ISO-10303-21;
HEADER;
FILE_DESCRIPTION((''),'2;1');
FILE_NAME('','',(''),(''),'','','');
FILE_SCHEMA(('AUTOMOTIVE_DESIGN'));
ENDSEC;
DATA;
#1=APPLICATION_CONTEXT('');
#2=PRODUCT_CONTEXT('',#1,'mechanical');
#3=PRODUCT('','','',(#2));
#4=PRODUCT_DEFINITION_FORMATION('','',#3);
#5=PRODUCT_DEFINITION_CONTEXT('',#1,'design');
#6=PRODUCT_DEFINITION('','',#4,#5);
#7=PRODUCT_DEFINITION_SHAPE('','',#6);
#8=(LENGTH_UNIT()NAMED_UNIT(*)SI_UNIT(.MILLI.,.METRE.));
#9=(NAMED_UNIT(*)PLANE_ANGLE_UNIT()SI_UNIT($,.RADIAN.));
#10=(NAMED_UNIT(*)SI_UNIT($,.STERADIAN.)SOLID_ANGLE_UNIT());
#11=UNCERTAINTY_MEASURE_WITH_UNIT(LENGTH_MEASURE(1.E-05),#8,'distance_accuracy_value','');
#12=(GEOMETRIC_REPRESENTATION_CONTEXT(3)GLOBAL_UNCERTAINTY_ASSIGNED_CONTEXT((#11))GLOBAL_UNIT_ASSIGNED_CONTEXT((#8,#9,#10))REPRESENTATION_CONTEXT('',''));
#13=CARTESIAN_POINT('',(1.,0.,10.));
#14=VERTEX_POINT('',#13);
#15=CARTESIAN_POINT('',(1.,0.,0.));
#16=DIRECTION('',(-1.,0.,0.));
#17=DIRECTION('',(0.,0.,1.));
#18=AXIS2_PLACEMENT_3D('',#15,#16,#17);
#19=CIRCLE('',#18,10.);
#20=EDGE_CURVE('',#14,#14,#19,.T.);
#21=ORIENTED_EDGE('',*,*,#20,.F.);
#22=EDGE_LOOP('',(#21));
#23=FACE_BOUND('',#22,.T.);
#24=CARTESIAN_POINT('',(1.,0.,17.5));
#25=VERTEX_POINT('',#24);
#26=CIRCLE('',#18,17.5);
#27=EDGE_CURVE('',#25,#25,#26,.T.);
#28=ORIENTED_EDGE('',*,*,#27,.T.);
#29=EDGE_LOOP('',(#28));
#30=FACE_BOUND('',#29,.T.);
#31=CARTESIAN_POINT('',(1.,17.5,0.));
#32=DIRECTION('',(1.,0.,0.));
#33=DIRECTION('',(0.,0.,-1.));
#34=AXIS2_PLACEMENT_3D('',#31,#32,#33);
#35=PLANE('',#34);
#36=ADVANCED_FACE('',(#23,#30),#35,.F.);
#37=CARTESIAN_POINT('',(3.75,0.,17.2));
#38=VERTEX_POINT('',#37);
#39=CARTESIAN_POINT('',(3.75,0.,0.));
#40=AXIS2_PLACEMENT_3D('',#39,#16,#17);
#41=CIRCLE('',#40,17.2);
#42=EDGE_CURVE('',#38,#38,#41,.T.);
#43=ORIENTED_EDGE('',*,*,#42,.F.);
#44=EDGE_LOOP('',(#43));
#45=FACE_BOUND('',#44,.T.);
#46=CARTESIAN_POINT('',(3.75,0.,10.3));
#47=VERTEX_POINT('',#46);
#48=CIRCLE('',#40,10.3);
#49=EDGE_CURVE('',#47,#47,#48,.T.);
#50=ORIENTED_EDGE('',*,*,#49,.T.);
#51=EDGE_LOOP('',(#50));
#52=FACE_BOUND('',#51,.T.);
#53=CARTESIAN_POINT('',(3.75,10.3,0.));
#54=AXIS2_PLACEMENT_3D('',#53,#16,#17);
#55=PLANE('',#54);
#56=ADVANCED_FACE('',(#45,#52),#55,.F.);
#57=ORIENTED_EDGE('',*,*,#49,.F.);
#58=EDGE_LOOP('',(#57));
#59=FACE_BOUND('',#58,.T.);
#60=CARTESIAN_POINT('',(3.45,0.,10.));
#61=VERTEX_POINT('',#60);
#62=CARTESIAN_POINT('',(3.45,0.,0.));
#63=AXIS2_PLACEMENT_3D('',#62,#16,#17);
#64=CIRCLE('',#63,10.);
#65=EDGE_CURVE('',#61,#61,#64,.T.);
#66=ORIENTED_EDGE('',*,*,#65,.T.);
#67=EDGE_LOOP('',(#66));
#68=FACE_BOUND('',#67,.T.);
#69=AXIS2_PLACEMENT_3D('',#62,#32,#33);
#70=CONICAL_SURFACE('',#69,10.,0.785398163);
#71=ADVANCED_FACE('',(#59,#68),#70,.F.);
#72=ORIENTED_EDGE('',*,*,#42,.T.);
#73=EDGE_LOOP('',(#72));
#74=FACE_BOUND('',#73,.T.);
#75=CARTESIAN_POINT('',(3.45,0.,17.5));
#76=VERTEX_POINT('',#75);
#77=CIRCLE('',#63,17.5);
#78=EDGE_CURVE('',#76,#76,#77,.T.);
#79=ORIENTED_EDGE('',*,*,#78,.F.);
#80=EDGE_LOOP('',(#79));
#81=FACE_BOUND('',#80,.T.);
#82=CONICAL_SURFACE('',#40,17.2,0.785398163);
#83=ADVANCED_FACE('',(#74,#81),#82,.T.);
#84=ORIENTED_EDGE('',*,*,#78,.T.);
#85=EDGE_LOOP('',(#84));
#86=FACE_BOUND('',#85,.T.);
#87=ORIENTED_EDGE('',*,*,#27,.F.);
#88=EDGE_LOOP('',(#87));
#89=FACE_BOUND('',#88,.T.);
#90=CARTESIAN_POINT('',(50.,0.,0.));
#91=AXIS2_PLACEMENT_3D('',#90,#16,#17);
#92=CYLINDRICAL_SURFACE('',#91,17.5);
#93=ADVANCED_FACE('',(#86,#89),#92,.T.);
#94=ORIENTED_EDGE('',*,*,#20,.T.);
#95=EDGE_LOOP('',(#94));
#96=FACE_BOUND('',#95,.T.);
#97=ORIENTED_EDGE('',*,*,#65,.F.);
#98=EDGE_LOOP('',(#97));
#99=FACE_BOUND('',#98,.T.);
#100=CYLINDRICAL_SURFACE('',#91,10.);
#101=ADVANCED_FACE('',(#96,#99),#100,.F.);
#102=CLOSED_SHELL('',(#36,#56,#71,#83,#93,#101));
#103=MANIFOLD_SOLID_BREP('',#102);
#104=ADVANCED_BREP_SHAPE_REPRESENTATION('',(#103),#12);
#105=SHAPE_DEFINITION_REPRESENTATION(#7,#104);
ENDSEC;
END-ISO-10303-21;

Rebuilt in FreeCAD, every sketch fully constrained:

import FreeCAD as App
import Part
import Sketcher
from FreeCAD import Vector
Q = App.Units.Quantity


def add_polygon(sketch, points):
    """Adds a closed chain of lines whose ends are joined by coincident constraints."""
    first, n = sketch.GeometryCount, len(points)
    for a, b in zip(points, points[1:] + points[:1]):
        sketch.addGeometry(Part.LineSegment(App.Vector(*a, 0), App.Vector(*b, 0)), False)
    for i in range(n):
        sketch.addConstraint(Sketcher.Constraint("Coincident", first + i, 2, first + (i + 1) % n, 1))

doc = App.newDocument("Part")
params = doc.addObject("Spreadsheet::Sheet", "Params")
for row, (alias, value) in enumerate([
    ("sketch1_height", "6.9 mm"),
    ("sketch1_height2", "7.5 mm"),
    ("sketch1_width", "2.45 mm"),
    ("revolution_angle", "360 deg"),
], start=1):
    params.set(f"A{row}", alias)
    params.set(f"B{row}", "=" + value)
    params.setAlias(f"B{row}", alias)

body = doc.addObject("PartDesign::Body", "Body")

# Sketch on XY plane
sketch1 = doc.addObject("Sketcher::SketchObject", "Sketch")
body.addObject(sketch1)
sketch1.AttachmentSupport = (doc.XY_Plane, [""])
sketch1.MapMode = "FlatFace"
add_polygon(sketch1, [(1, 10), (3.45, 10), (3.75, 10.3), (3.75, 17.2), (3.45, 17.5), (1, 17.5)])  # lines 0-5
sketch1.addConstraint([
    Sketcher.Constraint("Horizontal", 0),
    Sketcher.Constraint("Vertical", 2),
    Sketcher.Constraint("Horizontal", 4),
    Sketcher.Constraint("Vertical", 5),
    Sketcher.Constraint("Perpendicular", 1, 3),
    Sketcher.Constraint("Vertical", 0, 2, 3, 2),
    Sketcher.Constraint("Equal", 1, 3),
    Sketcher.Constraint("DistanceY", 2, 1, 2, 2, Q("6.9 mm")),
    Sketcher.Constraint("DistanceY", 5, 2, 5, 1, Q("7.5 mm")),
    Sketcher.Constraint("DistanceY", -1, 1, 0, 2, Q("10 mm")),
    Sketcher.Constraint("DistanceX", -1, 1, 4, 2, Q("1 mm")),
    Sketcher.Constraint("DistanceX", 0, 1, 0, 2, Q("2.45 mm")),
])
sketch1.setExpression("Constraints[13]", "Params.sketch1_height")
sketch1.setExpression("Constraints[14]", "Params.sketch1_height2")
sketch1.setExpression("Constraints[17]", "Params.sketch1_width")
revolution = doc.addObject("PartDesign::Revolution", "Revolution")
body.addObject(revolution)
revolution.Profile = sketch1
revolution.ReferenceAxis = (sketch1, ["H_Axis"])
revolution.setExpression("Angle", "Params.revolution_angle")

doc.recompute()
